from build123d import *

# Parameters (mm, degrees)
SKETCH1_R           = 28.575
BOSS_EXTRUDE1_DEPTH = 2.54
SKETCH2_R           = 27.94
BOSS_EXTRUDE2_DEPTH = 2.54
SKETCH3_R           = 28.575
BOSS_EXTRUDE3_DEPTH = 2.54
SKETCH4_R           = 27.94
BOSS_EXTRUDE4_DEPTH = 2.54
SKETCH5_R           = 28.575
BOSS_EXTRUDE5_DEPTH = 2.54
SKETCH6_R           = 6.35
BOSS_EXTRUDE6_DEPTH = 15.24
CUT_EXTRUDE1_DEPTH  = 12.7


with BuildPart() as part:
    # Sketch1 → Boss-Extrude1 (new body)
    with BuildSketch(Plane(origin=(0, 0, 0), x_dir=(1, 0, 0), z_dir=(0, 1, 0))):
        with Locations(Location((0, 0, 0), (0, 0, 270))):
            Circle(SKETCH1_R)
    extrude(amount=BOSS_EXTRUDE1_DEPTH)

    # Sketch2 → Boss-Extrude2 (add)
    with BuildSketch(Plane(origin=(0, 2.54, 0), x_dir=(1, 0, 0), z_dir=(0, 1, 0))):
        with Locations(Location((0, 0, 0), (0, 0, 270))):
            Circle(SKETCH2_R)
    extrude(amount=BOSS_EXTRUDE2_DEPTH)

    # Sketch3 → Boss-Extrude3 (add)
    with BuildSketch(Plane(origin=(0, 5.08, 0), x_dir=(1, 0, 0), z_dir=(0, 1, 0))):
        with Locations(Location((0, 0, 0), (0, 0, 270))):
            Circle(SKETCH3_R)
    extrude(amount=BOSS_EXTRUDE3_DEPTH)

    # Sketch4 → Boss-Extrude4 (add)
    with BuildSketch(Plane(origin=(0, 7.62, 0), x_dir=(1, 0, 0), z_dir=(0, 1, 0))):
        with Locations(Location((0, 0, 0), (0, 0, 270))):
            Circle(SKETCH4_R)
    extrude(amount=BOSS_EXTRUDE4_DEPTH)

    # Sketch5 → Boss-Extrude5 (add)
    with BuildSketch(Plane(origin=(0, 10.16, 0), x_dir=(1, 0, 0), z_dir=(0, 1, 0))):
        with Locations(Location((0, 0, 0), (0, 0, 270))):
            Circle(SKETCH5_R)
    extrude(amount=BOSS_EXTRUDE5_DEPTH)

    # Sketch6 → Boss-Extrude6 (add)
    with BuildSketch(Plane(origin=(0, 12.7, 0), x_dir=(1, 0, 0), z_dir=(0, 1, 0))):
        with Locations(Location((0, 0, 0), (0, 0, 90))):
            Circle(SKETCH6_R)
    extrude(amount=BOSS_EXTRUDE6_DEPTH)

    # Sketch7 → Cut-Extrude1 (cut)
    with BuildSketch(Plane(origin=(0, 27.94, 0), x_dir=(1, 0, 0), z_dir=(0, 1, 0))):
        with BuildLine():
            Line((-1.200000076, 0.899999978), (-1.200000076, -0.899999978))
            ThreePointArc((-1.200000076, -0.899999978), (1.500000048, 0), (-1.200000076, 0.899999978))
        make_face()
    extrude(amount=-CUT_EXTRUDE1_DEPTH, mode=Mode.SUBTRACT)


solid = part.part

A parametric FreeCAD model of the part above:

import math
import FreeCAD as App
import Part
import Sketcher
from FreeCAD import Vector
Q = App.Units.Quantity

doc = App.newDocument("Part")
params = doc.addObject("Spreadsheet::Sheet", "Params")
for row, (alias, value) in enumerate([
    ("sketch1_diameter", "2.25 in"),
    ("pad1_length", "0.1 in"),
    ("sketch2_diameter", "2.2 in"),
    ("pad2_length", "0.1 in"),
    ("sketch3_diameter", "2.25 in"),
    ("pad3_length", "0.1 in"),
    ("sketch4_diameter", "2.2 in"),
    ("pad4_length", "0.1 in"),
    ("sketch5_diameter", "2.25 in"),
    ("pad5_length", "0.1 in"),
    ("sketch6_diameter", "0.5 in"),
    ("pad6_length", "0.6 in"),
    ("pocket1_length", "0.5 in"),
], start=1):
    params.set(f"A{row}", alias)
    params.set(f"B{row}", "=" + value)
    params.setAlias(f"B{row}", alias)

body = doc.addObject("PartDesign::Body", "Body")

# Sketch on XZ plane
sketch1 = body.newObject("Sketcher::SketchObject", "Sketch")
sketch1.AttachmentSupport = (doc.getObject("XZ_Plane"), [""])
sketch1.MapMode = "FlatFace"
sketch1.addGeometry(Part.Circle(Vector(0, 0, 0), Vector(0, 0, 1), 29), False)
sketch1.addConstraint([
    Sketcher.Constraint("Coincident", 0, 3, -1, 1),
    Sketcher.Constraint("Diameter", 0, Q("2.25 in")),
])
sketch1.setExpression("Constraints[1]", "Params.sketch1_diameter")
pad1 = body.newObject("PartDesign::Pad", "Pad")
pad1.Profile = sketch1
pad1.setExpression("Length", "Params.pad1_length")
pad1.Reversed = True

# Sketch on XZ plane
sketch2 = body.newObject("Sketcher::SketchObject", "Sketch001")
sketch2.AttachmentSupport = (doc.getObject("XZ_Plane"), [""])
sketch2.MapMode = "FlatFace"
sketch2.AttachmentOffset = App.Placement(Vector(0, 0, -0.1 * 25.4), App.Rotation())
sketch2.addGeometry(Part.Circle(Vector(0, 0, 0), Vector(0, 0, 1), 28), False)
sketch2.addConstraint([
    Sketcher.Constraint("Coincident", 0, 3, -1, 1),
    Sketcher.Constraint("Diameter", 0, Q("2.2 in")),
])
sketch2.setExpression("Constraints[1]", "Params.sketch2_diameter")
pad2 = body.newObject("PartDesign::Pad", "Pad001")
pad2.Profile = sketch2
pad2.setExpression("Length", "Params.pad2_length")
pad2.Reversed = True

# Sketch on XZ plane
sketch3 = body.newObject("Sketcher::SketchObject", "Sketch002")
sketch3.AttachmentSupport = (doc.getObject("XZ_Plane"), [""])
sketch3.MapMode = "FlatFace"
sketch3.AttachmentOffset = App.Placement(Vector(0, 0, -0.2 * 25.4), App.Rotation())
sketch3.addGeometry(Part.Circle(Vector(0, 0, 0), Vector(0, 0, 1), 29), False)
sketch3.addConstraint([
    Sketcher.Constraint("Coincident", 0, 3, -1, 1),
    Sketcher.Constraint("Diameter", 0, Q("2.25 in")),
])
sketch3.setExpression("Constraints[1]", "Params.sketch3_diameter")
pad3 = body.newObject("PartDesign::Pad", "Pad002")
pad3.Profile = sketch3
pad3.setExpression("Length", "Params.pad3_length")
pad3.Reversed = True

# Sketch on XZ plane
sketch4 = body.newObject("Sketcher::SketchObject", "Sketch003")
sketch4.AttachmentSupport = (doc.getObject("XZ_Plane"), [""])
sketch4.MapMode = "FlatFace"
sketch4.AttachmentOffset = App.Placement(Vector(0, 0, -0.3 * 25.4), App.Rotation())
sketch4.addGeometry(Part.Circle(Vector(0, 0, 0), Vector(0, 0, 1), 28), False)
sketch4.addConstraint([
    Sketcher.Constraint("Coincident", 0, 3, -1, 1),
    Sketcher.Constraint("Diameter", 0, Q("2.2 in")),
])
sketch4.setExpression("Constraints[1]", "Params.sketch4_diameter")
pad4 = body.newObject("PartDesign::Pad", "Pad003")
pad4.Profile = sketch4
pad4.setExpression("Length", "Params.pad4_length")
pad4.Reversed = True

# Sketch on XZ plane
sketch5 = body.newObject("Sketcher::SketchObject", "Sketch004")
sketch5.AttachmentSupport = (doc.getObject("XZ_Plane"), [""])
sketch5.MapMode = "FlatFace"
sketch5.AttachmentOffset = App.Placement(Vector(0, 0, -0.4 * 25.4), App.Rotation())
sketch5.addGeometry(Part.Circle(Vector(0, 0, 0), Vector(0, 0, 1), 29), False)
sketch5.addConstraint([
    Sketcher.Constraint("Coincident", 0, 3, -1, 1),
    Sketcher.Constraint("Diameter", 0, Q("2.25 in")),
])
sketch5.setExpression("Constraints[1]", "Params.sketch5_diameter")
pad5 = body.newObject("PartDesign::Pad", "Pad004")
pad5.Profile = sketch5
pad5.setExpression("Length", "Params.pad5_length")
pad5.Reversed = True

# Sketch on XZ plane
sketch6 = body.newObject("Sketcher::SketchObject", "Sketch005")
sketch6.AttachmentSupport = (doc.getObject("XZ_Plane"), [""])
sketch6.MapMode = "FlatFace"
sketch6.AttachmentOffset = App.Placement(Vector(0, 0, -0.5 * 25.4), App.Rotation())
sketch6.addGeometry(Part.Circle(Vector(0, 0, 0), Vector(0, 0, 1), 6), False)
sketch6.addConstraint([
    Sketcher.Constraint("Coincident", 0, 3, -1, 1),
    Sketcher.Constraint("Diameter", 0, Q("0.5 in")),
])
sketch6.setExpression("Constraints[1]", "Params.sketch6_diameter")
pad6 = body.newObject("PartDesign::Pad", "Pad005")
pad6.Profile = sketch6
pad6.setExpression("Length", "Params.pad6_length")
pad6.Reversed = True

# Sketch on XZ plane
sketch7 = body.newObject("Sketcher::SketchObject", "Sketch006")
sketch7.AttachmentSupport = (doc.getObject("XZ_Plane"), [""])
sketch7.MapMode = "FlatFace"
sketch7.AttachmentOffset = App.Placement(Vector(0, 0, -1.1 * 25.4), App.Rotation())
sketch7.addGeometry([
    Part.LineSegment(Vector(-1.2, -0.9, 0), Vector(-1.2, 0.9, 0)),
    Part.ArcOfCircle(Part.Circle(Vector(0, 0, 0), Vector(0, 0, 1), 1.5), math.radians(-143), math.radians(143)),
], False)
sketch7.addConstraint([
    Sketcher.Constraint("Coincident", 0, 1, 1, 1),
    Sketcher.Constraint("Coincident", 1, 2, 0, 2),
    Sketcher.Constraint("Vertical", 0),
    Sketcher.Constraint("Coincident", 1, 3, -1, 1),
    Sketcher.Constraint("Radius", 1, 1.5),
    Sketcher.Constraint("DistanceY", 0, 1, 0, 2, 1.8),
])
pocket1 = body.newObject("PartDesign::Pocket", "Pocket")
pocket1.Profile = sketch7
pocket1.setExpression("Length", "Params.pocket1_length")
pocket1.Reversed = True

doc.recompute()
